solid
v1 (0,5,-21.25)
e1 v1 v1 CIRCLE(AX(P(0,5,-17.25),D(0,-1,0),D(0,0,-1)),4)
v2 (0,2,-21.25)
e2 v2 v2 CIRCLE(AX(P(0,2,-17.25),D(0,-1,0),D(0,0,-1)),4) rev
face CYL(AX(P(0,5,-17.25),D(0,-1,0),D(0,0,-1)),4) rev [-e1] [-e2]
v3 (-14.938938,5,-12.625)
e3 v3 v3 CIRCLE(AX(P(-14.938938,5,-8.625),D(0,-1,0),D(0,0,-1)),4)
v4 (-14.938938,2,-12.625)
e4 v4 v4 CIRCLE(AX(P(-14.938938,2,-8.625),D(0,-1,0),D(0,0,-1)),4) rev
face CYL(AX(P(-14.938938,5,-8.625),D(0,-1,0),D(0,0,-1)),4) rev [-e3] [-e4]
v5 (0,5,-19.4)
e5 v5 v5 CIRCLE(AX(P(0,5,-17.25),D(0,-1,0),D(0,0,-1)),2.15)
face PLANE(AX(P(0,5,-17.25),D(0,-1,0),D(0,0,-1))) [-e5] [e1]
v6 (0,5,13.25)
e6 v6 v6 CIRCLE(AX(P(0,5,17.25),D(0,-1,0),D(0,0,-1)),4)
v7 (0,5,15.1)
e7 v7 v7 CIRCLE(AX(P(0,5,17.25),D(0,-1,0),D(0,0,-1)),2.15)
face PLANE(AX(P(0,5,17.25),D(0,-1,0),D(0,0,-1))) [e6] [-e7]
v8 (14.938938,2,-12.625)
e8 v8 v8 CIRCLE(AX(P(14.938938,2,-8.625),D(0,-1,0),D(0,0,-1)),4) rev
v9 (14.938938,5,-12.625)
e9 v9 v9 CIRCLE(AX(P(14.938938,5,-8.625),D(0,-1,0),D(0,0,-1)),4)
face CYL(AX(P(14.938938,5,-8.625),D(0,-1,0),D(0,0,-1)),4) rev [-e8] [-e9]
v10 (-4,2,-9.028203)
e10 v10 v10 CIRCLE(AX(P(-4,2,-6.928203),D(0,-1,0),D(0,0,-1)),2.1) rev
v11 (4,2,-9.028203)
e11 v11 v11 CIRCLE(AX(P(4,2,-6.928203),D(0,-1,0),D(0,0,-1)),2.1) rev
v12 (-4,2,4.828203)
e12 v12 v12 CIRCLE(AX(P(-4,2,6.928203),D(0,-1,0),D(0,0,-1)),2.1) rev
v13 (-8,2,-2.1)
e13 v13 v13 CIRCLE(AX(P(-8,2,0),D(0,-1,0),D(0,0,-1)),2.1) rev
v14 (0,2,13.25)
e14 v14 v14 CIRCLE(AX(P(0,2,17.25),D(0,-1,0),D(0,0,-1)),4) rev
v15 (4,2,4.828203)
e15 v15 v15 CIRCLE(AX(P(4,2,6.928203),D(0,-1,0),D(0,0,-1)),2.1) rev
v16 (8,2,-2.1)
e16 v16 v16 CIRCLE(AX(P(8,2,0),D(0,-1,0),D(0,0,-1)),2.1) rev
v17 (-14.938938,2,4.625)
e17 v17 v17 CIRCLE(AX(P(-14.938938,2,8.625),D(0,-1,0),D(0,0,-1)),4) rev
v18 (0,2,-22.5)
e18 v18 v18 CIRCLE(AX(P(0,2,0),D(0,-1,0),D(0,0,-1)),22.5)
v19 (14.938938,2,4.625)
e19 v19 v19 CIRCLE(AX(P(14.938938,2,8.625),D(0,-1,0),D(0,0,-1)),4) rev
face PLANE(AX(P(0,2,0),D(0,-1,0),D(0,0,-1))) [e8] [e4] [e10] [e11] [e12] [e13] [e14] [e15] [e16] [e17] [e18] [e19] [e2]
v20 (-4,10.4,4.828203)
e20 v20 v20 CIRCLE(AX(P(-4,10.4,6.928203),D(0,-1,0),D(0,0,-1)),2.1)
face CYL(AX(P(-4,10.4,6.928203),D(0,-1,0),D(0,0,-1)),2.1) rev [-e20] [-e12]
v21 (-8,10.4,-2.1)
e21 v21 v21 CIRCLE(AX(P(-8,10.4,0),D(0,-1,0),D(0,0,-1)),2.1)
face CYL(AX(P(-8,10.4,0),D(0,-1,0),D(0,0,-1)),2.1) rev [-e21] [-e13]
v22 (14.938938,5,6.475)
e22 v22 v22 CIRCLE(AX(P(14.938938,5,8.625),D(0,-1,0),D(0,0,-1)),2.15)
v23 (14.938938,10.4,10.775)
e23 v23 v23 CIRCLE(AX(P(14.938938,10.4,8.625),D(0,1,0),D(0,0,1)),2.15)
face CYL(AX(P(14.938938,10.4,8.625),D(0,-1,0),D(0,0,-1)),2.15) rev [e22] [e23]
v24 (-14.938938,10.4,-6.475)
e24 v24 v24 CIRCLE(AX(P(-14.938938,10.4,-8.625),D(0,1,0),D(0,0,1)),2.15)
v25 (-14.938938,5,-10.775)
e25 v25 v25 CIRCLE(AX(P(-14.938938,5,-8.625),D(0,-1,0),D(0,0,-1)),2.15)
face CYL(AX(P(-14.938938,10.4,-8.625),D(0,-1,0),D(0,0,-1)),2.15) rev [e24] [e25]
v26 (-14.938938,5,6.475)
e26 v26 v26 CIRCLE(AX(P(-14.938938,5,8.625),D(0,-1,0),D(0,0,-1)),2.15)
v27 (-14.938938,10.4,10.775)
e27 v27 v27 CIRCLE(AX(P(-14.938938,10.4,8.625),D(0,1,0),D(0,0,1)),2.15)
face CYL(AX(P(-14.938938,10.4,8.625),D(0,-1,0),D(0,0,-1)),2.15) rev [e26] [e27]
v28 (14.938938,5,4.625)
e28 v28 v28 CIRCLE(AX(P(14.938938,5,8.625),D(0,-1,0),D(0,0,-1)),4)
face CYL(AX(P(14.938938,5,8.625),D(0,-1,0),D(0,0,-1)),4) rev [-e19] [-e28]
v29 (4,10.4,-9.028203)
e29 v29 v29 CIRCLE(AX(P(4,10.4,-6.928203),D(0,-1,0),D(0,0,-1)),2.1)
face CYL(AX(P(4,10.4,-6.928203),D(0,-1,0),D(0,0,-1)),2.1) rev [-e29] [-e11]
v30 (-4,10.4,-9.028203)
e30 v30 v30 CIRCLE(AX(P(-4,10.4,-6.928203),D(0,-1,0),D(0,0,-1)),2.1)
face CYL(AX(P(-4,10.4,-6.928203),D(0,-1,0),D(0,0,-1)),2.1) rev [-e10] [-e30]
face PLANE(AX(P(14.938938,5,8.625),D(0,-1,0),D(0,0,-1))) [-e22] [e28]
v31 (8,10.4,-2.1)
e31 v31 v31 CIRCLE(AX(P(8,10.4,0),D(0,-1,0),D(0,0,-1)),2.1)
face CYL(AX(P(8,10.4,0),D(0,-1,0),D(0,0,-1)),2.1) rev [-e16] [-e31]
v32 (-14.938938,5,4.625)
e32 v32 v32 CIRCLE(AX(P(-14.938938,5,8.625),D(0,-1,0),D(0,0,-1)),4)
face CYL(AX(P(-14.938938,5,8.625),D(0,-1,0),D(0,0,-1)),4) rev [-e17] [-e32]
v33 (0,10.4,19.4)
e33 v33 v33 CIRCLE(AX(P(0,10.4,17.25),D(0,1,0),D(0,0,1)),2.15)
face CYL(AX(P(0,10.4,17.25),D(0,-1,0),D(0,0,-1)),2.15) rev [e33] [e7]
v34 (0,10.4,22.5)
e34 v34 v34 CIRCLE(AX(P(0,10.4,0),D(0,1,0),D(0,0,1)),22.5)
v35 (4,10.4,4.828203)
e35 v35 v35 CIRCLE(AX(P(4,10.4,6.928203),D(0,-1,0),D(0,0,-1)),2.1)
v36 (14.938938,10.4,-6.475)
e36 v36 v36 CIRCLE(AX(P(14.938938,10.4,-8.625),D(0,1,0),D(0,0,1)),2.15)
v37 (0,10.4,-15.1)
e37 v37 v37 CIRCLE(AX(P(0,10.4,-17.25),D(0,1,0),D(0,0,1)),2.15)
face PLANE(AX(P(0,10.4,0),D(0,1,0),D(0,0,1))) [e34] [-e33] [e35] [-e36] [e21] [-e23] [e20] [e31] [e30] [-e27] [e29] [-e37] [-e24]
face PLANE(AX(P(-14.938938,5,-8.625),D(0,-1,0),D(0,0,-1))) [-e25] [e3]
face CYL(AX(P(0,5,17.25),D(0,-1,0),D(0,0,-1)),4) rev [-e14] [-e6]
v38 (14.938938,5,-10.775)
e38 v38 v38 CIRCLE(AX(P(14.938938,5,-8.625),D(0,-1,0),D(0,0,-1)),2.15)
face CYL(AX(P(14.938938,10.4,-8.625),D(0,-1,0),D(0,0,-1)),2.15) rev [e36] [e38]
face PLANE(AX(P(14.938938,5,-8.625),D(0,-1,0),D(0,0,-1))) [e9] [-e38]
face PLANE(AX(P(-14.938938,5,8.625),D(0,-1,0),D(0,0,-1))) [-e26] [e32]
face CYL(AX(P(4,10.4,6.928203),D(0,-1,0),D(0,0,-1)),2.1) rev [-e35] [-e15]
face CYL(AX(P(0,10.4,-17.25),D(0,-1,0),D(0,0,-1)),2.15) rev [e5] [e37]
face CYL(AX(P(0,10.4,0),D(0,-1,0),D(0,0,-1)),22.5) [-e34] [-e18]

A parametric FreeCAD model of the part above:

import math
import FreeCAD as App
import Part
import Sketcher

doc = App.newDocument("Part")
body = doc.addObject("PartDesign::Body", "Body")

sketch1 = body.newObject("Sketcher::SketchObject", "Sketch")
sketch1.AttachmentSupport = (doc.getObject("XZ_Plane"), [""])
sketch1.MapMode = "FlatFace"
sketch1.addGeometry(Part.Circle(App.Vector(0, 0, 0), App.Vector(0, 0, 1), 22.5), False)
sketch1.addGeometry(Part.Circle(App.Vector(-14.938938, -8.625, 0), App.Vector(0, 0, 1), 2.15), False)
sketch1.addGeometry(Part.Circle(App.Vector(0, -17.25, 0), App.Vector(0, 0, 1), 2.15), False)
sketch1.addGeometry(Part.Circle(App.Vector(-14.938938, 8.625, 0), App.Vector(0, 0, 1), 2.15), False)
sketch1.addGeometry(Part.Circle(App.Vector(14.938938, -8.625, 0), App.Vector(0, 0, 1), 2.15), False)
sketch1.addGeometry(Part.Circle(App.Vector(0, 17.25, 0), App.Vector(0, 0, 1), 2.15), False)
sketch1.addGeometry(Part.Circle(App.Vector(14.938938, 8.625, 0), App.Vector(0, 0, 1), 2.15), False)
sketch1.addConstraint(Sketcher.Constraint("Coincident", 0, 3, -1, 1))
sketch1.addConstraint(Sketcher.Constraint("Equal", 1, 2))
sketch1.addConstraint(Sketcher.Constraint("Equal", 2, 3))
sketch1.addConstraint(Sketcher.Constraint("Equal", 3, 4))
sketch1.addConstraint(Sketcher.Constraint("Equal", 4, 5))
sketch1.addConstraint(Sketcher.Constraint("Equal", 5, 6))
sketch1.addConstraint(Sketcher.Constraint("Symmetric", 3, 3, 4, 3, -1, 1))
sketch1.addConstraint(Sketcher.Constraint("Symmetric", 2, 3, 5, 3, -1, 1))
sketch1.addConstraint(Sketcher.Constraint("Symmetric", 1, 3, 6, 3, -1, 1))
sketch1.addConstraint(Sketcher.Constraint("Symmetric", 1, 3, 4, 3, -2))
sketch1.addConstraint(Sketcher.Constraint("PointOnObject", 2, 3, -2))
sketch1.addConstraint(Sketcher.Constraint("Diameter", 0, 45.0))
sketch1.addConstraint(Sketcher.Constraint("Diameter", 1, 4.3))
sketch1.addConstraint(Sketcher.Constraint("DistanceY", 2, 3, 5, 3, 34.5))
sketch1.addConstraint(Sketcher.Constraint("DistanceY", 1, 3, 3, 3, 17.25))
sketch1.addConstraint(Sketcher.Constraint("DistanceX", 1, 3, -1, 1, 14.938938))
pad1 = body.newObject("PartDesign::Pad", "Pad")
pad1.Profile = sketch1
pad1.Length = 10.4
pad1.Reversed = True

sketch2 = body.newObject("Sketcher::SketchObject", "Sketch001")
sketch2.AttachmentSupport = (doc.getObject("XZ_Plane"), [""])
sketch2.MapMode = "FlatFace"
sketch2.addGeometry(Part.Circle(App.Vector(0, 17.25, 0), App.Vector(0, 0, 1), 4), False)
sketch2.addGeometry(Part.Circle(App.Vector(0, 17.25, 0), App.Vector(0, 0, 1), 2.15), False)
sketch2.addGeometry(Part.Circle(App.Vector(14.938938, 8.625, 0), App.Vector(0, 0, 1), 4), False)
sketch2.addGeometry(Part.Circle(App.Vector(14.938938, 8.625, 0), App.Vector(0, 0, 1), 2.15), False)
sketch2.addGeometry(Part.Circle(App.Vector(14.938938, -8.625, 0), App.Vector(0, 0, 1), 4), False)
sketch2.addGeometry(Part.Circle(App.Vector(14.938938, -8.625, 0), App.Vector(0, 0, 1), 2.15), False)
sketch2.addGeometry(Part.Circle(App.Vector(0, -17.25, 0), App.Vector(0, 0, 1), 4), False)
sketch2.addGeometry(Part.Circle(App.Vector(0, -17.25, 0), App.Vector(0, 0, 1), 2.15), False)
sketch2.addGeometry(Part.Circle(App.Vector(-14.938938, -8.625, 0), App.Vector(0, 0, 1), 4), False)
sketch2.addGeometry(Part.Circle(App.Vector(-14.938938, -8.625, 0), App.Vector(0, 0, 1), 2.15), False)
sketch2.addGeometry(Part.Circle(App.Vector(-14.938938, 8.625, 0), App.Vector(0, 0, 1), 4), False)
sketch2.addGeometry(Part.Circle(App.Vector(-14.938938, 8.625, 0), App.Vector(0, 0, 1), 2.15), False)
sketch2.addConstraint(Sketcher.Constraint("Coincident", 1, 3, 0, 3))
sketch2.addConstraint(Sketcher.Constraint("Coincident", 3, 3, 2, 3))
sketch2.addConstraint(Sketcher.Constraint("Coincident", 5, 3, 4, 3))
sketch2.addConstraint(Sketcher.Constraint("Coincident", 7, 3, 6, 3))
sketch2.addConstraint(Sketcher.Constraint("Coincident", 9, 3, 8, 3))
sketch2.addConstraint(Sketcher.Constraint("Coincident", 11, 3, 10, 3))
sketch2.addConstraint(Sketcher.Constraint("Equal", 0, 2))
sketch2.addConstraint(Sketcher.Constraint("Equal", 1, 3))
sketch2.addConstraint(Sketcher.Constraint("Equal", 2, 4))
sketch2.addConstraint(Sketcher.Constraint("Equal", 3, 5))
sketch2.addConstraint(Sketcher.Constraint("Equal", 4, 6))
sketch2.addConstraint(Sketcher.Constraint("Equal", 5, 7))
sketch2.addConstraint(Sketcher.Constraint("Equal", 6, 8))
sketch2.addConstraint(Sketcher.Constraint("Equal", 7, 9))
sketch2.addConstraint(Sketcher.Constraint("Equal", 8, 10))
sketch2.addConstraint(Sketcher.Constraint("Equal", 9, 11))
sketch2.addConstraint(Sketcher.Constraint("Symmetric", 0, 3, 6, 3, -1, 1))
sketch2.addConstraint(Sketcher.Constraint("Symmetric", 2, 3, 8, 3, -1, 1))
sketch2.addConstraint(Sketcher.Constraint("Symmetric", 4, 3, 10, 3, -1, 1))
sketch2.addConstraint(Sketcher.Constraint("Symmetric", 4, 3, 8, 3, -2))
sketch2.addConstraint(Sketcher.Constraint("PointOnObject", 0, 3, -2))
sketch2.addConstraint(Sketcher.Constraint("Diameter", 0, 8.0))
sketch2.addConstraint(Sketcher.Constraint("Diameter", 1, 4.3))
sketch2.addConstraint(Sketcher.Constraint("DistanceY", 6, 3, 0, 3, 34.5))
sketch2.addConstraint(Sketcher.Constraint("DistanceY", 4, 3, 2, 3, 17.25))
sketch2.addConstraint(Sketcher.Constraint("DistanceX", -1, 1, 2, 3, 14.938938))
pocket1 = body.newObject("PartDesign::Pocket", "Pocket")
pocket1.Profile = sketch2
pocket1.Length = 5

sketch3 = body.newObject("Sketcher::SketchObject", "Sketch002")
sketch3.AttachmentSupport = (doc.getObject("XZ_Plane"), [""])
sketch3.MapMode = "FlatFace"
sketch3.addGeometry(Part.ArcOfCircle(Part.Circle(App.Vector(4, 6.928203, 0), App.Vector(0, 0, 1), 2.1), math.radians(60), math.radians(240)), False)
sketch3.addGeometry(Part.ArcOfCircle(Part.Circle(App.Vector(4, 6.928203, 0), App.Vector(0, 0, 1), 2.1), math.radians(-120), math.radians(0)), False)
sketch3.addGeometry(Part.ArcOfCircle(Part.Circle(App.Vector(4, 6.928203, 0), App.Vector(0, 0, 1), 2.1), math.radians(0), math.radians(60)), False)
sketch3.addGeometry(Part.Circle(App.Vector(8, 0, 0), App.Vector(0, 0, 1), 2.1), False)
sketch3.addGeometry(Part.Circle(App.Vector(-4, 6.928203, 0), App.Vector(0, 0, 1), 2.1), False)
sketch3.addGeometry(Part.Circle(App.Vector(-8, 0, 0), App.Vector(0, 0, 1), 2.1), False)
sketch3.addGeometry(Part.Circle(App.Vector(-4, -6.928203, 0), App.Vector(0, 0, 1), 2.1), False)
sketch3.addGeometry(Part.Circle(App.Vector(4, -6.928203, 0), App.Vector(0, 0, 1), 2.1), False)
sketch3.addConstraint(Sketcher.Constraint("Tangent", 0, 2, 1, 1))
sketch3.addConstraint(Sketcher.Constraint("Tangent", 1, 2, 2, 1))
sketch3.addConstraint(Sketcher.Constraint("Tangent", 2, 2, 0, 1))
sketch3.addConstraint(Sketcher.Constraint("Equal", 2, 3))
sketch3.addConstraint(Sketcher.Constraint("Equal", 3, 4))
sketch3.addConstraint(Sketcher.Constraint("Equal", 4, 5))
sketch3.addConstraint(Sketcher.Constraint("Equal", 5, 6))
sketch3.addConstraint(Sketcher.Constraint("Equal", 6, 7))
sketch3.addConstraint(Sketcher.Constraint("Symmetric", 3, 3, 5, 3, -1, 1))
sketch3.addConstraint(Sketcher.Constraint("Symmetric", 0, 3, 6, 3, -1, 1))
sketch3.addConstraint(Sketcher.Constraint("Symmetric", 4, 3, 7, 3, -1, 1))
sketch3.addConstraint(Sketcher.Constraint("Symmetric", 0, 3, 4, 3, -2))
sketch3.addConstraint(Sketcher.Constraint("PointOnObject", 3, 3, -1))
sketch3.addConstraint(Sketcher.Constraint("Horizontal", 4, 3, 1, 2))
sketch3.addConstraint(Sketcher.Constraint("Diameter", 3, 4.2))
sketch3.addConstraint(Sketcher.Constraint("DistanceX", -1, 1, 0, 3, 4.0))
sketch3.addConstraint(Sketcher.Constraint("DistanceX", -1, 1, 3, 3, 8.0))
sketch3.addConstraint(Sketcher.Constraint("DistanceX", 0, 2, 2, 2, 2.1))
sketch3.addConstraint(Sketcher.Constraint("DistanceX", -1, 1, 0, 2, 2.95))
sketch3.addConstraint(Sketcher.Constraint("DistanceY", -1, 1, 0, 2, 5.10955))
pocket2 = body.newObject("PartDesign::Pocket", "Pocket001")
pocket2.Profile = sketch3
pocket2.Type = "ThroughAll"

sketch4 = body.newObject("Sketcher::SketchObject", "Sketch003")
sketch4.AttachmentSupport = (doc.getObject("XZ_Plane"), [""])
sketch4.MapMode = "FlatFace"
sketch4.addGeometry(Part.Circle(App.Vector(0, 0, 0), App.Vector(0, 0, 1), 22.5), False)
sketch4.addConstraint(Sketcher.Constraint("Coincident", 0, 3, -1, 1))
sketch4.addConstraint(Sketcher.Constraint("Diameter", 0, 45.0))
pocket3 = body.newObject("PartDesign::Pocket", "Pocket002")
pocket3.Profile = sketch4
pocket3.Length = 2

doc.recompute()
